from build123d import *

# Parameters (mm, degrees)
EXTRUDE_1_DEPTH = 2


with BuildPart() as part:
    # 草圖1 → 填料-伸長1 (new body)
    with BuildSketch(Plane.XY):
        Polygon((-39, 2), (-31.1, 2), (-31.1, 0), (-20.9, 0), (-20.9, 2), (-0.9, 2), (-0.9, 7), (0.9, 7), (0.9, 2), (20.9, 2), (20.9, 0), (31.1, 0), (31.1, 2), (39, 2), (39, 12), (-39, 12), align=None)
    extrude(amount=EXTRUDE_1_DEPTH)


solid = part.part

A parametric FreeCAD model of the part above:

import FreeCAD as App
import Part
import Sketcher

V = App.Vector
Q = App.Units.Quantity


def add_polygon(sketch, points):
    """Adds a closed chain of lines whose ends are joined by coincident constraints."""
    first, n = sketch.GeometryCount, len(points)
    for a, b in zip(points, points[1:] + points[:1]):
        sketch.addGeometry(Part.LineSegment(App.Vector(*a, 0), App.Vector(*b, 0)), False)
    for i in range(n):
        sketch.addConstraint(Sketcher.Constraint("Coincident", first + i, 2, first + (i + 1) % n, 1))

doc = App.newDocument("Part")
params = doc.addObject("Spreadsheet::Sheet", "Params")
for row, (alias, value) in enumerate([
    ("sketch1_width", "20 mm"),
    ("sketch1_width2", "78 mm"),
    ("sketch1_height", "2 mm"),
    ("sketch1_height2", "5 mm"),
    ("sketch1_height3", "10 mm"),
    ("pad1_length", "2 mm"),
], start=1):
    params.set(f"A{row}", alias)
    params.set(f"B{row}", "=" + value)
    params.setAlias(f"B{row}", alias)

body = doc.addObject("PartDesign::Body", "Body")

# Sketch on XY plane
sketch1 = body.newObject("Sketcher::SketchObject", "Sketch")
sketch1.AttachmentSupport = (doc.getObject("XY_Plane"), [""])
sketch1.MapMode = "FlatFace"
add_polygon(sketch1, [(-39, 2), (-31.1, 2), (-31.1, 0), (-20.9, 0), (-20.9, 2), (-0.9, 2), (-0.9, 7), (0.9, 7), (0.9, 2), (20.9, 2), (20.9, 0), (31.1, 0), (31.1, 2), (39, 2), (39, 12), (-39, 12)])  # lines 0-15
sketch1.addConstraint(Sketcher.Constraint("Horizontal", 0))
sketch1.addConstraint(Sketcher.Constraint("Vertical", 1))
sketch1.addConstraint(Sketcher.Constraint("Horizontal", 2))
sketch1.addConstraint(Sketcher.Constraint("Vertical", 3))
sketch1.addConstraint(Sketcher.Constraint("Horizontal", 4))
sketch1.addConstraint(Sketcher.Constraint("Vertical", 5))
sketch1.addConstraint(Sketcher.Constraint("Horizontal", 6))
sketch1.addConstraint(Sketcher.Constraint("Vertical", 7))
sketch1.addConstraint(Sketcher.Constraint("Horizontal", 8))
sketch1.addConstraint(Sketcher.Constraint("Vertical", 9))
sketch1.addConstraint(Sketcher.Constraint("Horizontal", 10))
sketch1.addConstraint(Sketcher.Constraint("Vertical", 11))
sketch1.addConstraint(Sketcher.Constraint("Horizontal", 12))
sketch1.addConstraint(Sketcher.Constraint("Vertical", 13))
sketch1.addConstraint(Sketcher.Constraint("Horizontal", 14))
sketch1.addConstraint(Sketcher.Constraint("Vertical", 15))
sketch1.addConstraint(Sketcher.Constraint("Symmetric", 2, 2, 9, 2, -1, 1))
sketch1.addConstraint(Sketcher.Constraint("Symmetric", 4, 2, 7, 2, -2))
sketch1.addConstraint(Sketcher.Constraint("Symmetric", 1, 2, 10, 2, -2))
sketch1.addConstraint(Sketcher.Constraint("Symmetric", 12, 2, 15, 2, -2))
sketch1.addConstraint(Sketcher.Constraint("Horizontal", 0, 2, 3, 2))
sketch1.addConstraint(Sketcher.Constraint("DistanceX", 4, 1, 4, 2, Q("20 mm")))
sketch1.addConstraint(Sketcher.Constraint("DistanceX", 14, 2, 14, 1, Q("78 mm")))
sketch1.addConstraint(Sketcher.Constraint("DistanceY", 1, 2, 1, 1, Q("2 mm")))
sketch1.addConstraint(Sketcher.Constraint("DistanceY", 5, 1, 5, 2, Q("5 mm")))
sketch1.addConstraint(Sketcher.Constraint("DistanceY", 13, 1, 13, 2, Q("10 mm")))
sketch1.addConstraint(Sketcher.Constraint("DistanceX", 0, 1, 0, 2, Q("7.9 mm")))
sketch1.addConstraint(Sketcher.Constraint("DistanceX", 2, 1, 2, 2, Q("10.2 mm")))
sketch1.setExpression("Constraints[37]", "Params.sketch1_width")
sketch1.setExpression("Constraints[38]", "Params.sketch1_width2")
sketch1.setExpression("Constraints[39]", "Params.sketch1_height")
sketch1.setExpression("Constraints[40]", "Params.sketch1_height2")
sketch1.setExpression("Constraints[41]", "Params.sketch1_height3")
pad1 = body.newObject("PartDesign::Pad", "Pad")
pad1.Profile = sketch1
pad1.setExpression("Length", "Params.pad1_length")

doc.recompute()
